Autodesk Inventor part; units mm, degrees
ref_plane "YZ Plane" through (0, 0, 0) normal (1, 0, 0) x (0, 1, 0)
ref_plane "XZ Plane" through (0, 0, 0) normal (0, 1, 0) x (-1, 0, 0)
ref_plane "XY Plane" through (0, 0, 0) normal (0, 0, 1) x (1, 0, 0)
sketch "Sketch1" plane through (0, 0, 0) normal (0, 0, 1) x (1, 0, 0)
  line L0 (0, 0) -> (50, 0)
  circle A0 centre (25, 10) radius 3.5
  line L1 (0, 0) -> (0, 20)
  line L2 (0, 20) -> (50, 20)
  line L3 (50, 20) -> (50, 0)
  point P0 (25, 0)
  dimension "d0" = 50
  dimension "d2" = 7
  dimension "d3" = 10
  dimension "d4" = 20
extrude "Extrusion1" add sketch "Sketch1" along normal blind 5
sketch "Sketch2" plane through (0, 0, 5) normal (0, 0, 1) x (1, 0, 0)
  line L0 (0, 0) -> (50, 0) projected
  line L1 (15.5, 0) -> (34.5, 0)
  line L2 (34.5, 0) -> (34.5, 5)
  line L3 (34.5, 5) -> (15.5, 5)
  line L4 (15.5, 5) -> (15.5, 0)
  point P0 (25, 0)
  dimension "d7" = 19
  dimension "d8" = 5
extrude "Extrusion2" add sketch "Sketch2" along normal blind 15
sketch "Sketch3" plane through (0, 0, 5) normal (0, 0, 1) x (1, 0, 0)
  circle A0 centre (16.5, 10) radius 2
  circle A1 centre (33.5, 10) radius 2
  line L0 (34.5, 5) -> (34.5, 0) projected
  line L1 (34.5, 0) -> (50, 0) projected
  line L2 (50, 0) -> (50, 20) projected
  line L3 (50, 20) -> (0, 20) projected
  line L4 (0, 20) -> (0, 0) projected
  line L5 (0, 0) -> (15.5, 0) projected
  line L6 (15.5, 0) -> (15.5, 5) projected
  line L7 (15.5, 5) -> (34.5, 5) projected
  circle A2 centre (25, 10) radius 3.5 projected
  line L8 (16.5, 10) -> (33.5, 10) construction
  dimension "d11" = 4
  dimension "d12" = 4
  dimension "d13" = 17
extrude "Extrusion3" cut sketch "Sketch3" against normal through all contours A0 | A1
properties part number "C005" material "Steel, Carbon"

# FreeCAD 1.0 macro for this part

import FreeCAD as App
import Part
import Sketcher
Q = App.Units.Quantity

doc = App.newDocument("Part")
body = doc.addObject("PartDesign::Body", "Body")

# Sketch on XY plane
sketch1 = doc.addObject("Sketcher::SketchObject", "Sketch")
body.addObject(sketch1)
sketch1.AttachmentSupport = (doc.XY_Plane, [""])
sketch1.MapMode = "FlatFace"
sketch1.addGeometry([
    Part.LineSegment(App.Vector(0, 20, 0), App.Vector(0, 0, 0)),  # 0
    Part.LineSegment(App.Vector(0, 0, 0), App.Vector(50, 0, 0)),  # 1
    Part.LineSegment(App.Vector(50, 0, 0), App.Vector(50, 20, 0)),  # 2
    Part.LineSegment(App.Vector(50, 20, 0), App.Vector(0, 20, 0)),  # 3
    Part.Circle(App.Vector(25, 10, 0), App.Vector(0, 0, 1), 3.5),  # 4
], False)
sketch1.addConstraint([
    Sketcher.Constraint("Coincident", 0, 2, 1, 1),
    Sketcher.Constraint("Coincident", 1, 2, 2, 1),
    Sketcher.Constraint("Coincident", 2, 2, 3, 1),
    Sketcher.Constraint("Coincident", 3, 2, 0, 1),
    Sketcher.Constraint("Vertical", 0),
    Sketcher.Constraint("Horizontal", 1),
    Sketcher.Constraint("Vertical", 2),
    Sketcher.Constraint("Horizontal", 3),
    Sketcher.Constraint("Coincident", 0, 2, -1, 1),
    Sketcher.Constraint("Diameter", 4, Q("7 mm")),
    Sketcher.Constraint("DistanceX", 1, 1, 1, 2, Q("50 mm")),
    Sketcher.Constraint("DistanceY", 0, 2, 0, 1, Q("20 mm")),
    Sketcher.Constraint("DistanceY", -1, 1, 4, 3, Q("10 mm")),
    Sketcher.Constraint("DistanceX", -1, 1, 4, 3, Q("25 mm")),
])
pad1 = doc.addObject("PartDesign::Pad", "Pad")
body.addObject(pad1)
pad1.Profile = sketch1
pad1.Length = 5

# Sketch on XY plane
sketch2 = doc.addObject("Sketcher::SketchObject", "Sketch001")
body.addObject(sketch2)
sketch2.AttachmentSupport = (doc.XY_Plane, [""])
sketch2.MapMode = "FlatFace"
sketch2.AttachmentOffset = App.Placement(App.Vector(0, 0, 5), App.Rotation())
sketch2.addGeometry([
    Part.LineSegment(App.Vector(15.5, 5, 0), App.Vector(15.5, 0, 0)),
    Part.LineSegment(App.Vector(15.5, 0, 0), App.Vector(34.5, 0, 0)),
    Part.LineSegment(App.Vector(34.5, 0, 0), App.Vector(34.5, 5, 0)),
    Part.LineSegment(App.Vector(34.5, 5, 0), App.Vector(15.5, 5, 0)),
], False)
sketch2.addConstraint([
    Sketcher.Constraint("Coincident", 0, 2, 1, 1),
    Sketcher.Constraint("Coincident", 1, 2, 2, 1),
    Sketcher.Constraint("Coincident", 2, 2, 3, 1),
    Sketcher.Constraint("Coincident", 3, 2, 0, 1),
    Sketcher.Constraint("Vertical", 0),
    Sketcher.Constraint("Horizontal", 1),
    Sketcher.Constraint("Vertical", 2),
    Sketcher.Constraint("Horizontal", 3),
    Sketcher.Constraint("PointOnObject", 0, 2, -1),
    Sketcher.Constraint("DistanceX", 1, 1, 1, 2, Q("19 mm")),
    Sketcher.Constraint("DistanceY", 0, 2, 0, 1, Q("5 mm")),
    Sketcher.Constraint("DistanceX", -1, 1, 0, 2, Q("15.5 mm")),
])
pad2 = doc.addObject("PartDesign::Pad", "Pad001")
body.addObject(pad2)
pad2.Profile = sketch2
pad2.Length = 15

# Sketch on XY plane
sketch3 = doc.addObject("Sketcher::SketchObject", "Sketch002")
body.addObject(sketch3)
sketch3.AttachmentSupport = (doc.XY_Plane, [""])
sketch3.MapMode = "FlatFace"
sketch3.AttachmentOffset = App.Placement(App.Vector(0, 0, 5), App.Rotation())
sketch3.addGeometry([
    Part.Circle(App.Vector(16.5, 10, 0), App.Vector(0, 0, 1), 2),
    Part.Circle(App.Vector(33.5, 10, 0), App.Vector(0, 0, 1), 2),
], False)
sketch3.addConstraint([
    Sketcher.Constraint("Equal", 0, 1),
    Sketcher.Constraint("Horizontal", 0, 3, 1, 3),
    Sketcher.Constraint("Diameter", 0, Q("4 mm")),
    Sketcher.Constraint("DistanceX", 0, 3, 1, 3, Q("17 mm")),
    Sketcher.Constraint("DistanceY", -1, 1, 0, 3, Q("10 mm")),
    Sketcher.Constraint("DistanceX", -1, 1, 0, 3, Q("16.5 mm")),
])
pocket1 = doc.addObject("PartDesign::Pocket", "Pocket")
body.addObject(pocket1)
pocket1.Profile = sketch3
pocket1.Type = "ThroughAll"

doc.recompute()
